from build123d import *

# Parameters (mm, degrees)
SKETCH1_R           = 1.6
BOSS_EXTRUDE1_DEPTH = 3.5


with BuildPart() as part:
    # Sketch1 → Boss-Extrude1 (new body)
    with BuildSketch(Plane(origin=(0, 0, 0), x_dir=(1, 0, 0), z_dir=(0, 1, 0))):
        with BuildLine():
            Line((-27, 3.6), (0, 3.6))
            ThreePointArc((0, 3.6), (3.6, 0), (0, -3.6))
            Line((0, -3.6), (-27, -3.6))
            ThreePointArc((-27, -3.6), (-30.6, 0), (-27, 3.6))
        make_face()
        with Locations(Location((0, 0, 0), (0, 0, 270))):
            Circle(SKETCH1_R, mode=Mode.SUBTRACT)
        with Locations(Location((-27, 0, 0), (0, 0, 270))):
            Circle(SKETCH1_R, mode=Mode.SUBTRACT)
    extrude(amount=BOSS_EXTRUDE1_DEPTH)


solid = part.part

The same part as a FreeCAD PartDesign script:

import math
import FreeCAD as App
import Part
import Sketcher

V = App.Vector

doc = App.newDocument("Part")
body = doc.addObject("PartDesign::Body", "Body")

sketch1 = body.newObject("Sketcher::SketchObject", "Sketch")
sketch1.AttachmentSupport = (doc.getObject("XZ_Plane"), [""])
sketch1.MapMode = "FlatFace"
sketch1.addGeometry(Part.LineSegment(V(0, -3.6, 0), V(-27, -3.6, 0)), False)
sketch1.addGeometry(Part.ArcOfCircle(Part.Circle(V(-27, 0, 0), V(0, 0, 1), 3.6), math.radians(90), math.radians(270)), False)
sketch1.addGeometry(Part.LineSegment(V(-27, 3.6, 0), V(0, 3.6, 0)), False)
sketch1.addGeometry(Part.ArcOfCircle(Part.Circle(V(0, 0, 0), V(0, 0, 1), 3.6), math.radians(-90), math.radians(90)), False)
sketch1.addGeometry(Part.Circle(V(0, 0, 0), V(0, 0, 1), 1.6), False)
sketch1.addGeometry(Part.Circle(V(-27, 0, 0), V(0, 0, 1), 1.6), False)
sketch1.addConstraint(Sketcher.Constraint("Tangent", 0, 2, 1, 2))
sketch1.addConstraint(Sketcher.Constraint("Tangent", 1, 1, 2, 1))
sketch1.addConstraint(Sketcher.Constraint("Tangent", 2, 2, 3, 2))
sketch1.addConstraint(Sketcher.Constraint("Tangent", 3, 1, 0, 1))
sketch1.addConstraint(Sketcher.Constraint("Horizontal", 0))
sketch1.addConstraint(Sketcher.Constraint("Horizontal", 2))
sketch1.addConstraint(Sketcher.Constraint("Coincident", 3, 3, -1, 1))
sketch1.addConstraint(Sketcher.Constraint("Coincident", 4, 3, -1, 1))
sketch1.addConstraint(Sketcher.Constraint("Coincident", 5, 3, 1, 3))
sketch1.addConstraint(Sketcher.Constraint("Equal", 4, 5))
sketch1.addConstraint(Sketcher.Constraint("Diameter", 4, 3.2))
sketch1.addConstraint(Sketcher.Constraint("Radius", 1, 3.6))
sketch1.addConstraint(Sketcher.Constraint("DistanceX", 0, 2, 0, 1, 27.0))
pad1 = body.newObject("PartDesign::Pad", "Pad")
pad1.Profile = sketch1
pad1.Length = 3.5
pad1.Reversed = True

doc.recompute()
